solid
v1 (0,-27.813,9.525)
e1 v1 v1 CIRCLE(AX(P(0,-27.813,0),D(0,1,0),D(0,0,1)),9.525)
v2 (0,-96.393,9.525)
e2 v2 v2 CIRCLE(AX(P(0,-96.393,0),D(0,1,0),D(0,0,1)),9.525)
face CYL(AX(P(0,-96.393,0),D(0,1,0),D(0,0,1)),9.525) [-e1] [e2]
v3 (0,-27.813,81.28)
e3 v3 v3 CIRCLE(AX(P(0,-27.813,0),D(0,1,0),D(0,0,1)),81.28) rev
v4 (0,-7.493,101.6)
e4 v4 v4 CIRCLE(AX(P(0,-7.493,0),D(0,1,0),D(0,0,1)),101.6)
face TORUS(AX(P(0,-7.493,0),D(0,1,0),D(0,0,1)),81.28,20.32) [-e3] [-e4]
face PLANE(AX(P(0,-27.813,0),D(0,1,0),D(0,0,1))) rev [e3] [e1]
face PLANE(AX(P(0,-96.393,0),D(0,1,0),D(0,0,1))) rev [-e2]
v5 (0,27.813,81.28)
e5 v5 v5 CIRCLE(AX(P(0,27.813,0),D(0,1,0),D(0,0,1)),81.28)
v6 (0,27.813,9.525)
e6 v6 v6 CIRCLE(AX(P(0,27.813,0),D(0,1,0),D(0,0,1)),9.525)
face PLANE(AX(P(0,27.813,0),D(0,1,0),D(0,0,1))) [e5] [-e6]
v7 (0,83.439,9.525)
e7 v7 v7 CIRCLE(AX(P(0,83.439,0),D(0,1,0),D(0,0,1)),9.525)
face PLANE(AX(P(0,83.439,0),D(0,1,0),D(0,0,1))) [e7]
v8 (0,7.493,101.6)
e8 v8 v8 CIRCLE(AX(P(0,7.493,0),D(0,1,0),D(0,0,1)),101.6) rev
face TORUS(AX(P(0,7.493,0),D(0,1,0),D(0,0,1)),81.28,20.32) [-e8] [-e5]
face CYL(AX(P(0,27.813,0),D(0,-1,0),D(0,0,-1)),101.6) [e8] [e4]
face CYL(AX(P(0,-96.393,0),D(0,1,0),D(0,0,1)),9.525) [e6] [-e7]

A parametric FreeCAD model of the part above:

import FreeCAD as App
import Part
import Sketcher
from FreeCAD import Vector
Q = App.Units.Quantity


def edges_at(feature, points):
    """Names of the edges that pass closest to the given points."""
    edges = feature.Shape.Edges
    near = lambda p: min(range(len(edges)), key=lambda i: edges[i].distToShape(Part.Vertex(*p))[0])
    return sorted({f"Edge{near(p) + 1}" for p in points})

doc = App.newDocument("Part")
body = doc.addObject("PartDesign::Body", "Body")

sketch1 = body.newObject("Sketcher::SketchObject", "Sketch")
sketch1.AttachmentSupport = (doc.getObject("XZ_Plane"), [""])
sketch1.MapMode = "FlatFace"
sketch1.addGeometry(Part.Circle(Vector(0, 0, 0), Vector(0, 0, 1), 102), False)
sketch1.addConstraint([
    Sketcher.Constraint("Coincident", 0, 3, -1, 1),
    Sketcher.Constraint("Diameter", 0, Q("8 in")),
])
pad1 = body.newObject("PartDesign::Pad", "Pad")
pad1.Profile = sketch1
pad1.Length = Q("2.19 in")
pad1.Midplane = True

sketch2 = body.newObject("Sketcher::SketchObject", "Sketch001")
sketch2.AttachmentSupport = (doc.getObject("XZ_Plane"), [""])
sketch2.MapMode = "FlatFace"
sketch2.AttachmentOffset = App.Placement(Vector(0, 0, -1.095 * 25.4), App.Rotation())
sketch2.addGeometry(Part.Circle(Vector(0, 0, 0), Vector(0, 0, 1), 10), False)
sketch2.addConstraint([
    Sketcher.Constraint("Coincident", 0, 3, -1, 1),
    Sketcher.Constraint("Diameter", 0, Q("0.75 in")),
])
pad2 = body.newObject("PartDesign::Pad", "Pad001")
pad2.Profile = sketch2
pad2.Type = "TwoLengths"
pad2.Length = Q("2.19 in")
pad2.Length2 = Q("4.89 in")
pad2.Reversed = True
doc.recompute()

fillet = body.newObject("PartDesign::Fillet", "Fillet")
fillet.Base = (pad2, edges_at(pad2, [(0, -27.813, -101.6), (0, 27.813, -101.6)]))
fillet.Radius = Q("0.8 in")

doc.recompute()
